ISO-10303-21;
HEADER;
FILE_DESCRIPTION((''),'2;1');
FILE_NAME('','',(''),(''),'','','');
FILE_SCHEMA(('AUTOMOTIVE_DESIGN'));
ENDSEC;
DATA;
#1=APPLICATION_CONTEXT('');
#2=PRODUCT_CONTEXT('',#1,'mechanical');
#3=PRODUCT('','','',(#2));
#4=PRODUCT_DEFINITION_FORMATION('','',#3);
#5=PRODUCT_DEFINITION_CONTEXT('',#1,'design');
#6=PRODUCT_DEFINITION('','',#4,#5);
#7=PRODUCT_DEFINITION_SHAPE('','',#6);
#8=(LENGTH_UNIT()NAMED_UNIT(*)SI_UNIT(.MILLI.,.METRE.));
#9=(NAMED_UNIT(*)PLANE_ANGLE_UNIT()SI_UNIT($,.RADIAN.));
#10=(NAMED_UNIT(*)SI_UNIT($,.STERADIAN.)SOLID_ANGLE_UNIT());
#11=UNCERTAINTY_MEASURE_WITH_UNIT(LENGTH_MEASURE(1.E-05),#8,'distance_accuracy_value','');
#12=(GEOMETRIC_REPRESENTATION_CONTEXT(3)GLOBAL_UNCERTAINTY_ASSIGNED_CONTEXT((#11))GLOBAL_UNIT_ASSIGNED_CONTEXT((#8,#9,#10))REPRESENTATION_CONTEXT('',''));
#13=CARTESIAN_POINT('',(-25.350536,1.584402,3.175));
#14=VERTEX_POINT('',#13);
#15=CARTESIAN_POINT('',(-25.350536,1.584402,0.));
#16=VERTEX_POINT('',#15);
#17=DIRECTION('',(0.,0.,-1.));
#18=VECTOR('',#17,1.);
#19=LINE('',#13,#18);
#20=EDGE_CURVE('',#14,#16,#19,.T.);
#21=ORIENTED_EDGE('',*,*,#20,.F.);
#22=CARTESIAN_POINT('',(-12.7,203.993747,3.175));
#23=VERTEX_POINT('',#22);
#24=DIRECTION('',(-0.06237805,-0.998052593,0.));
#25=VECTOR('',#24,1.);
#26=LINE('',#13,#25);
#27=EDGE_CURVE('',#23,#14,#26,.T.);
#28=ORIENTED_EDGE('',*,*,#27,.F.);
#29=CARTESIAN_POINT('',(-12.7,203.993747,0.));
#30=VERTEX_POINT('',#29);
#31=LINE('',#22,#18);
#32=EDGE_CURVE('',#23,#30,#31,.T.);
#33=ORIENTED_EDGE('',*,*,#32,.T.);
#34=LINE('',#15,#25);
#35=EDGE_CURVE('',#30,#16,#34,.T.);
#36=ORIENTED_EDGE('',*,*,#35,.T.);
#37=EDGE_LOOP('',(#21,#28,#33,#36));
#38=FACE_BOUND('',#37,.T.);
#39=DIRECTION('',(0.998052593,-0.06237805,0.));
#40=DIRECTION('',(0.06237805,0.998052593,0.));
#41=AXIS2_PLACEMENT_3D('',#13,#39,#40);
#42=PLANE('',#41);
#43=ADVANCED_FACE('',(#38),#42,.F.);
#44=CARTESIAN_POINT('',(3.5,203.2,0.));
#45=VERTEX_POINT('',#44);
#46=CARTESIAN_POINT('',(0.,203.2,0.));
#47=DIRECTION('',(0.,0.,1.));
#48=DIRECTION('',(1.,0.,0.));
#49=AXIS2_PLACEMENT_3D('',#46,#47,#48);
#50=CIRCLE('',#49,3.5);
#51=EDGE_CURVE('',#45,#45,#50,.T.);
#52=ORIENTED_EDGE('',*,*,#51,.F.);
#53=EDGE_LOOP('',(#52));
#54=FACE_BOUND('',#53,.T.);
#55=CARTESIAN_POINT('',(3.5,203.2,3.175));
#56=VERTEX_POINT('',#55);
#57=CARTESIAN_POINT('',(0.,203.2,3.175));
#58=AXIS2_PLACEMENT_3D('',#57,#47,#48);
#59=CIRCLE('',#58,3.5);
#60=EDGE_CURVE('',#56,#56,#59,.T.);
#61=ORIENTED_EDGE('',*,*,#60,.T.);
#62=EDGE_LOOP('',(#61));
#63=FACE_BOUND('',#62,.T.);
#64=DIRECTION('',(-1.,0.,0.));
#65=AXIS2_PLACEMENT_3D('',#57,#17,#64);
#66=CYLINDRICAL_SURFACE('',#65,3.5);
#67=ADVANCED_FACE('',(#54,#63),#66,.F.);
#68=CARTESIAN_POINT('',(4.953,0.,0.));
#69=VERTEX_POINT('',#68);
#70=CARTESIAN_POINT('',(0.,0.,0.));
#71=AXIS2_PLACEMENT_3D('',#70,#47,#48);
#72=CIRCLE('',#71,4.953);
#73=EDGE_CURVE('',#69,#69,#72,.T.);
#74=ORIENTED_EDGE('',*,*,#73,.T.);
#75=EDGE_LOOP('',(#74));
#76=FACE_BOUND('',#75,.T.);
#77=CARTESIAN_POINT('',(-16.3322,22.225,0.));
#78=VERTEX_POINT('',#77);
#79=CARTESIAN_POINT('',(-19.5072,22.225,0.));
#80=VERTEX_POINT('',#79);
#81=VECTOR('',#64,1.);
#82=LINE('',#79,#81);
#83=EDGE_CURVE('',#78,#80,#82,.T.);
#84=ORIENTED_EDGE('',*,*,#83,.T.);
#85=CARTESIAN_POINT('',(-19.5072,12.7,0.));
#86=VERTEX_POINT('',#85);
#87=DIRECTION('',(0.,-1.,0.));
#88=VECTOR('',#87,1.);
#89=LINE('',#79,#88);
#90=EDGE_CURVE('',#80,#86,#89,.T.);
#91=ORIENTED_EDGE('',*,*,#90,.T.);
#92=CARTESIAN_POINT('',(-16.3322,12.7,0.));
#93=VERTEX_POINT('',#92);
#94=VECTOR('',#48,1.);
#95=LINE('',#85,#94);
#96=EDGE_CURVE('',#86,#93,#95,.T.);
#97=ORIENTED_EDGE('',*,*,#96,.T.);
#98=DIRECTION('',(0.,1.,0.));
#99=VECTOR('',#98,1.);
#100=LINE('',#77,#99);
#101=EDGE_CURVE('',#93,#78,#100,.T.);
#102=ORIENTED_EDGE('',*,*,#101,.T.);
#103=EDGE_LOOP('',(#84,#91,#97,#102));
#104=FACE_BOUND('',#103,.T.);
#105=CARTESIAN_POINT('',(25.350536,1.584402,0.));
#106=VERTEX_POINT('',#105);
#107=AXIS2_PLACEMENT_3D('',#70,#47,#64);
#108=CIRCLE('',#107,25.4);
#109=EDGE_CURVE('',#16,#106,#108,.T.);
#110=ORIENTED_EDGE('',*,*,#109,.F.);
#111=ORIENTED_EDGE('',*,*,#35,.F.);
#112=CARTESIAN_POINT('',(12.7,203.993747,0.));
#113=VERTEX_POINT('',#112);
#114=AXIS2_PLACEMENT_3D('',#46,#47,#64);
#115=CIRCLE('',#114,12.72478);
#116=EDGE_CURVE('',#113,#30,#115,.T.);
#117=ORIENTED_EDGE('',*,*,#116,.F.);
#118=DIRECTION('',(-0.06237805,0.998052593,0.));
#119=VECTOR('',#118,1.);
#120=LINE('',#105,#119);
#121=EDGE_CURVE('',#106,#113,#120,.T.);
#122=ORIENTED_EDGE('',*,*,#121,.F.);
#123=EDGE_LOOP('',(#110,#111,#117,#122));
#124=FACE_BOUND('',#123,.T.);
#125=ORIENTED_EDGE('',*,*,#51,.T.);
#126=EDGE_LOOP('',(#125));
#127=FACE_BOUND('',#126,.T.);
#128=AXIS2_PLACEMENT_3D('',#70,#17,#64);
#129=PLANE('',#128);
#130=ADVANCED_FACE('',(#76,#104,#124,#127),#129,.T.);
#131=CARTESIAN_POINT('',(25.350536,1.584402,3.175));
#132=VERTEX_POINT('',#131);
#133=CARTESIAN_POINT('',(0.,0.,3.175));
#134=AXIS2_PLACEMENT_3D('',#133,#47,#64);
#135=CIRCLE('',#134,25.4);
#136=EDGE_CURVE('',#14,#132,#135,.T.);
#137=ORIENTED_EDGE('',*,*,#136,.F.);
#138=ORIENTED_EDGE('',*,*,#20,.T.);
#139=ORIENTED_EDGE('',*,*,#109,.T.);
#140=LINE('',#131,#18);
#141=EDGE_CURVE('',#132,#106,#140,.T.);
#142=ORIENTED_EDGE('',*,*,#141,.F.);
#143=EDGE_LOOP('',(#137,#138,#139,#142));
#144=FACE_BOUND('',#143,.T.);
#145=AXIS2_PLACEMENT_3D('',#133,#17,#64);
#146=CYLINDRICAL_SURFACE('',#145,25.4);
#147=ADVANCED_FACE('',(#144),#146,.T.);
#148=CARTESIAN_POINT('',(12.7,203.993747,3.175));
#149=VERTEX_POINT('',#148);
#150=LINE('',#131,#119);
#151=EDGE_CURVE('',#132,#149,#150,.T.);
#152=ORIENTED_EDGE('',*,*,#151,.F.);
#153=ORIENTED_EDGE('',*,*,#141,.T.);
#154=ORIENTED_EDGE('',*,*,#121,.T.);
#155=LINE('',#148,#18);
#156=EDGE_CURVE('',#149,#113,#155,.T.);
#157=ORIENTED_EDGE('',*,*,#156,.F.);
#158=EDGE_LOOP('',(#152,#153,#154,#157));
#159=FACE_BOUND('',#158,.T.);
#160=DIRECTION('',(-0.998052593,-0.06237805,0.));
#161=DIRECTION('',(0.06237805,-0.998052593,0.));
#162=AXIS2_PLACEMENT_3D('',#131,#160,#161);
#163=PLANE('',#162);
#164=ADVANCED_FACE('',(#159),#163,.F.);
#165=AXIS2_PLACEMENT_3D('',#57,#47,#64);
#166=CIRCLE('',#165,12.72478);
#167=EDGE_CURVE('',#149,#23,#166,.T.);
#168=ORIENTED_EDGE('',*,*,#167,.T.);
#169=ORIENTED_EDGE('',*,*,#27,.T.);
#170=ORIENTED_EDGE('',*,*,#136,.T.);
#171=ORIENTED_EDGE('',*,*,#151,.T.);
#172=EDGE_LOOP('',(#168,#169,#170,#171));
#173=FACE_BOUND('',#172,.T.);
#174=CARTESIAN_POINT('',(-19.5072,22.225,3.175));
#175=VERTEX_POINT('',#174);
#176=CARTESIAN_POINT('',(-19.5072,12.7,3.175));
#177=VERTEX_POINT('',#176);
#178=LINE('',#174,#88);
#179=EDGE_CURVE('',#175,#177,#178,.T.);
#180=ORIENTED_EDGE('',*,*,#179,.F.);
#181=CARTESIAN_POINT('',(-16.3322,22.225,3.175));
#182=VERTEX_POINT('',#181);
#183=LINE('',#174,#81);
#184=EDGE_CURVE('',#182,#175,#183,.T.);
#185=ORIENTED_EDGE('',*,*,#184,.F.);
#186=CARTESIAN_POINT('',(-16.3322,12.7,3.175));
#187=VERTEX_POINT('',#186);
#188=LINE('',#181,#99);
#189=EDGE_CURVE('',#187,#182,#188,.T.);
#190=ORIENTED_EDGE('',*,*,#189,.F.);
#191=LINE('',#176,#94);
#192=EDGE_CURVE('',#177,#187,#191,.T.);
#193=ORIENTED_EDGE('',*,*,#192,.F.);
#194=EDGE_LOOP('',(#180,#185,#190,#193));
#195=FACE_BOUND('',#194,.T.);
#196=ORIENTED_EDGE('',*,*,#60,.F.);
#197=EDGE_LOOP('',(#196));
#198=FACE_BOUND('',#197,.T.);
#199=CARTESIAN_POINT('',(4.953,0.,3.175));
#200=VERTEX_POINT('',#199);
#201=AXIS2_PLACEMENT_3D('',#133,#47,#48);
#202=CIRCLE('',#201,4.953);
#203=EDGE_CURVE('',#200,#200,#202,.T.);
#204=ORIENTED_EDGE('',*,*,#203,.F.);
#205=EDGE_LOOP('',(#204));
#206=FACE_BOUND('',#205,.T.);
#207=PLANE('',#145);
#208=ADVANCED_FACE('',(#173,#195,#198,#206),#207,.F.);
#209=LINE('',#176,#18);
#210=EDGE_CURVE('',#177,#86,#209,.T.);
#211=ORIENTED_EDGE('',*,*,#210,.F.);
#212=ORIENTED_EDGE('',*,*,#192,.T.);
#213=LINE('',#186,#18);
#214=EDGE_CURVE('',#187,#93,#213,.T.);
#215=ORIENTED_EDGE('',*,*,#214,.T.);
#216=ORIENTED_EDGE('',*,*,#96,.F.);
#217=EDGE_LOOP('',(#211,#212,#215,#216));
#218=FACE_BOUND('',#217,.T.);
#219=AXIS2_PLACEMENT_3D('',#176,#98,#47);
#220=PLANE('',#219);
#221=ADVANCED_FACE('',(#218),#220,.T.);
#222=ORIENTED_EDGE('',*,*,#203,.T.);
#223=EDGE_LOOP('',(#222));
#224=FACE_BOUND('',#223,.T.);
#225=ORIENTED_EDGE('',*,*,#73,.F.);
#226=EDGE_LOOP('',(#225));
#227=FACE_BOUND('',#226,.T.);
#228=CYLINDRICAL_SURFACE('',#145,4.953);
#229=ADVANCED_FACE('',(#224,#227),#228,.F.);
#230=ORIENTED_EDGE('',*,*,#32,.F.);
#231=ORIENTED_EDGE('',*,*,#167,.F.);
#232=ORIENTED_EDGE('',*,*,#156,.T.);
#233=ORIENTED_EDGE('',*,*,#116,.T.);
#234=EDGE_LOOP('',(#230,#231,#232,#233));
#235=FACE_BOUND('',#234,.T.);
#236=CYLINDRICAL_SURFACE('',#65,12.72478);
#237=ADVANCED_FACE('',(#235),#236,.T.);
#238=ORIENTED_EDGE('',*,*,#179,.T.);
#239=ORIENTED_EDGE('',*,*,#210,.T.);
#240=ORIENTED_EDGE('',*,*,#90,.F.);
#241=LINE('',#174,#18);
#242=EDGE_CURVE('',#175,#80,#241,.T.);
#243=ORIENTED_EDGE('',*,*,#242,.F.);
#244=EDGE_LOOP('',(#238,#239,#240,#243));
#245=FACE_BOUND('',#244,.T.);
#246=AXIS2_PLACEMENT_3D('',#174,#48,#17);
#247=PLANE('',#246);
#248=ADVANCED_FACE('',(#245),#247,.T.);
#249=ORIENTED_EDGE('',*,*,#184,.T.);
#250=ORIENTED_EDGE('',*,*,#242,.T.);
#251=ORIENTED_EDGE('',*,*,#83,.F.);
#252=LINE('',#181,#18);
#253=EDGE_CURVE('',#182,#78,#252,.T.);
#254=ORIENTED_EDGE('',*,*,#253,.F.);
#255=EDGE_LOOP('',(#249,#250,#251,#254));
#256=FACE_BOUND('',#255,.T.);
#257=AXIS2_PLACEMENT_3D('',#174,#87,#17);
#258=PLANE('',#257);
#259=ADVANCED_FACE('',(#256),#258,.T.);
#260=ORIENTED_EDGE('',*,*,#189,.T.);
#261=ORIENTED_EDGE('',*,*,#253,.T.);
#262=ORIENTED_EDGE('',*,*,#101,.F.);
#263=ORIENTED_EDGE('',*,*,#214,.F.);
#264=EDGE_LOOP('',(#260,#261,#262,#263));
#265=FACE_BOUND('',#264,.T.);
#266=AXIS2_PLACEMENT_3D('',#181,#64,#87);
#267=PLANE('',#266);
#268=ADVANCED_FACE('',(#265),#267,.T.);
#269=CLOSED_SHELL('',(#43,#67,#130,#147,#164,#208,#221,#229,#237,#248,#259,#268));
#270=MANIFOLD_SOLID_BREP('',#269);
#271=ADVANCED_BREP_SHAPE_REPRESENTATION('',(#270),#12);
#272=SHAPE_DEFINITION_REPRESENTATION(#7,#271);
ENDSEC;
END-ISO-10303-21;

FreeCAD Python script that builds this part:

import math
import FreeCAD as App
import Part
import Sketcher
Q = App.Units.Quantity


def add_polygon(sketch, points):
    """Adds a closed chain of lines whose ends are joined by coincident constraints."""
    first, n = sketch.GeometryCount, len(points)
    for a, b in zip(points, points[1:] + points[:1]):
        sketch.addGeometry(Part.LineSegment(App.Vector(*a, 0), App.Vector(*b, 0)), False)
    for i in range(n):
        sketch.addConstraint(Sketcher.Constraint("Coincident", first + i, 2, first + (i + 1) % n, 1))

doc = App.newDocument("Part")
params = doc.addObject("Spreadsheet::Sheet", "Params")
for row, (alias, value) in enumerate([
    ("sketch1_radius", "1 in"),
    ("sketch1_diameter", "0.39 in"),
    ("sketch1_width", "0.125 in"),
    ("sketch1_height", "0.375 in"),
    ("pad1_length", "0.125 in"),
], start=1):
    params.set(f"A{row}", alias)
    params.set(f"B{row}", "=" + value)
    params.setAlias(f"B{row}", alias)

body = doc.addObject("PartDesign::Body", "Body")

# Sketch on XY plane
sketch1 = body.newObject("Sketcher::SketchObject", "Sketch")
sketch1.AttachmentSupport = (doc.getObject("XY_Plane"), [""])
sketch1.MapMode = "FlatFace"
sketch1.addGeometry(Part.LineSegment(App.Vector(-12.7, 203.993747, 0), App.Vector(-25.350536, 1.584402, 0)), False)  # 0
sketch1.addGeometry(Part.ArcOfCircle(Part.Circle(App.Vector(0, 0, 0), App.Vector(0, 0, 1), 25.4), math.radians(176.423679), math.radians(363.576321)), False)  # 1
sketch1.addGeometry(Part.LineSegment(App.Vector(25.350536, 1.584402, 0), App.Vector(12.7, 203.993747, 0)), False)  # 2
sketch1.addGeometry(Part.ArcOfCircle(Part.Circle(App.Vector(0, 203.2, 0), App.Vector(0, 0, 1), 12.72478), math.radians(3.576321), math.radians(176.423679)), False)  # 3
sketch1.addGeometry(Part.Circle(App.Vector(0, 0, 0), App.Vector(0, 0, 1), 4.953), False)  # 4
add_polygon(sketch1, [(-19.5072, 12.7), (-19.5072, 22.225), (-16.3322, 22.225), (-16.3322, 12.7)])  # lines 5-8
sketch1.addGeometry(Part.Circle(App.Vector(0, 203.2, 0), App.Vector(0, 0, 1), 3.5), False)  # 9
sketch1.addConstraint([
    Sketcher.Constraint("Tangent", 0, 2, 1, 1),
    Sketcher.Constraint("Tangent", 1, 2, 2, 1),
    Sketcher.Constraint("Tangent", 2, 2, 3, 1),
    Sketcher.Constraint("Tangent", 3, 2, 0, 1),
    Sketcher.Constraint("Vertical", 5),
    Sketcher.Constraint("Horizontal", 6),
    Sketcher.Constraint("Vertical", 7),
    Sketcher.Constraint("Horizontal", 8),
    Sketcher.Constraint("Coincident", 1, 3, -1, 1),
    Sketcher.Constraint("Coincident", 4, 3, -1, 1),
    Sketcher.Constraint("Coincident", 9, 3, 3, 3),
    Sketcher.Constraint("PointOnObject", 3, 3, -2),
    Sketcher.Constraint("Radius", 1, Q("1 in")),
    Sketcher.Constraint("Diameter", 4, Q("0.39 in")),
    Sketcher.Constraint("DistanceY", -1, 1, 3, 3, Q("8 in")),
    Sketcher.Constraint("DistanceX", 3, 2, 2, 2, Q("1 in")),
    Sketcher.Constraint("DistanceY", -1, 1, 7, 2, Q("0.5 in")),
    Sketcher.Constraint("Diameter", 9, 7.0),
    Sketcher.Constraint("DistanceX", 6, 1, 6, 2, Q("0.125 in")),
    Sketcher.Constraint("DistanceY", 5, 1, 5, 2, Q("0.375 in")),
    Sketcher.Constraint("DistanceX", 5, 2, -1, 1, Q("0.768 in")),
])
sketch1.setExpression("Constraints[16]", "Params.sketch1_radius")
sketch1.setExpression("Constraints[17]", "Params.sketch1_diameter")
sketch1.setExpression("Constraints[22]", "Params.sketch1_width")
sketch1.setExpression("Constraints[23]", "Params.sketch1_height")
pad1 = body.newObject("PartDesign::Pad", "Pad")
pad1.Profile = sketch1
pad1.setExpression("Length", "Params.pad1_length")

doc.recompute()
